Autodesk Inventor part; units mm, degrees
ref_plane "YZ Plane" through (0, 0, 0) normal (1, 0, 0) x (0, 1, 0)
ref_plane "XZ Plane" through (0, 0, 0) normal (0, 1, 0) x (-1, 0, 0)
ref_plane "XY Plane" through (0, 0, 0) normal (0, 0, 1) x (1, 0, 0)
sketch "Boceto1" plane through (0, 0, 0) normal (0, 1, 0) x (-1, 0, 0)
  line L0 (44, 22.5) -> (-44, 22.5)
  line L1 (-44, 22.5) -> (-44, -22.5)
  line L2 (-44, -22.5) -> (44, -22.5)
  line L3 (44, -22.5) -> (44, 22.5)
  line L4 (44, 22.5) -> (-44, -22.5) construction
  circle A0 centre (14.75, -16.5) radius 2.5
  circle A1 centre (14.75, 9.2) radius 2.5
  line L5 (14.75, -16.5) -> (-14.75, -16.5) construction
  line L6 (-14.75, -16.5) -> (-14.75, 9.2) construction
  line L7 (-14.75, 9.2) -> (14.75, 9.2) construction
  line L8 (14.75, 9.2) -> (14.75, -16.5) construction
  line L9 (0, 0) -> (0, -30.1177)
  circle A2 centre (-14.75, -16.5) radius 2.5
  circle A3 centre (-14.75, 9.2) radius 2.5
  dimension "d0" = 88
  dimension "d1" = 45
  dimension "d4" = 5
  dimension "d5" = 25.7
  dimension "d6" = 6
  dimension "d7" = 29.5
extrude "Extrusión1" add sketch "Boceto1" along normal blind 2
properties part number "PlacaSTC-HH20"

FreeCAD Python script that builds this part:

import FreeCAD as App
import Part
import Sketcher

doc = App.newDocument("Part")
body = doc.addObject("PartDesign::Body", "Body")

# Sketch on XZ plane
sketch1 = body.newObject("Sketcher::SketchObject", "Sketch")
sketch1.AttachmentSupport = (doc.getObject("XZ_Plane"), [""])
sketch1.MapMode = "FlatFace"
sketch1.addGeometry(Part.LineSegment(App.Vector(-44, -22.5, 0), App.Vector(-44, 22.5, 0)), False)
sketch1.addGeometry(Part.LineSegment(App.Vector(-44, 22.5, 0), App.Vector(44, 22.5, 0)), False)
sketch1.addGeometry(Part.LineSegment(App.Vector(44, 22.5, 0), App.Vector(44, -22.5, 0)), False)
sketch1.addGeometry(Part.LineSegment(App.Vector(44, -22.5, 0), App.Vector(-44, -22.5, 0)), False)
sketch1.addGeometry(Part.Circle(App.Vector(14.8, -16.5, 0), App.Vector(0, 0, 1), 2.5), False)
sketch1.addGeometry(Part.Circle(App.Vector(-14.8, -16.5, 0), App.Vector(0, 0, 1), 2.5), False)
sketch1.addGeometry(Part.Circle(App.Vector(14.8, 9.2, 0), App.Vector(0, 0, 1), 2.5), False)
sketch1.addGeometry(Part.Circle(App.Vector(-14.8, 9.2, 0), App.Vector(0, 0, 1), 2.5), False)
sketch1.addConstraint(Sketcher.Constraint("Coincident", 0, 2, 1, 1))
sketch1.addConstraint(Sketcher.Constraint("Coincident", 1, 2, 2, 1))
sketch1.addConstraint(Sketcher.Constraint("Coincident", 2, 2, 3, 1))
sketch1.addConstraint(Sketcher.Constraint("Coincident", 3, 2, 0, 1))
sketch1.addConstraint(Sketcher.Constraint("Vertical", 0))
sketch1.addConstraint(Sketcher.Constraint("Horizontal", 1))
sketch1.addConstraint(Sketcher.Constraint("Vertical", 2))
sketch1.addConstraint(Sketcher.Constraint("Horizontal", 3))
sketch1.addConstraint(Sketcher.Constraint("Equal", 4, 5))
sketch1.addConstraint(Sketcher.Constraint("Equal", 5, 6))
sketch1.addConstraint(Sketcher.Constraint("Equal", 6, 7))
sketch1.addConstraint(Sketcher.Constraint("Symmetric", 0, 2, 2, 2, -1, 1))
sketch1.addConstraint(Sketcher.Constraint("Symmetric", 4, 3, 5, 3, -2))
sketch1.addConstraint(Sketcher.Constraint("Symmetric", 6, 3, 7, 3, -2))
sketch1.addConstraint(Sketcher.Constraint("Vertical", 4, 3, 6, 3))
sketch1.addConstraint(Sketcher.Constraint("Diameter", 4, 5.0))
sketch1.addConstraint(Sketcher.Constraint("DistanceX", 1, 1, 1, 2, 88.0))
sketch1.addConstraint(Sketcher.Constraint("DistanceY", 0, 1, 0, 2, 45.0))
sketch1.addConstraint(Sketcher.Constraint("DistanceY", 2, 2, 4, 3, 6.0))
sketch1.addConstraint(Sketcher.Constraint("DistanceX", 5, 3, 4, 3, 29.5))
sketch1.addConstraint(Sketcher.Constraint("DistanceY", 4, 3, 6, 3, 25.7))
pad1 = body.newObject("PartDesign::Pad", "Pad")
pad1.Profile = sketch1
pad1.Length = 2
pad1.Reversed = True

doc.recompute()
